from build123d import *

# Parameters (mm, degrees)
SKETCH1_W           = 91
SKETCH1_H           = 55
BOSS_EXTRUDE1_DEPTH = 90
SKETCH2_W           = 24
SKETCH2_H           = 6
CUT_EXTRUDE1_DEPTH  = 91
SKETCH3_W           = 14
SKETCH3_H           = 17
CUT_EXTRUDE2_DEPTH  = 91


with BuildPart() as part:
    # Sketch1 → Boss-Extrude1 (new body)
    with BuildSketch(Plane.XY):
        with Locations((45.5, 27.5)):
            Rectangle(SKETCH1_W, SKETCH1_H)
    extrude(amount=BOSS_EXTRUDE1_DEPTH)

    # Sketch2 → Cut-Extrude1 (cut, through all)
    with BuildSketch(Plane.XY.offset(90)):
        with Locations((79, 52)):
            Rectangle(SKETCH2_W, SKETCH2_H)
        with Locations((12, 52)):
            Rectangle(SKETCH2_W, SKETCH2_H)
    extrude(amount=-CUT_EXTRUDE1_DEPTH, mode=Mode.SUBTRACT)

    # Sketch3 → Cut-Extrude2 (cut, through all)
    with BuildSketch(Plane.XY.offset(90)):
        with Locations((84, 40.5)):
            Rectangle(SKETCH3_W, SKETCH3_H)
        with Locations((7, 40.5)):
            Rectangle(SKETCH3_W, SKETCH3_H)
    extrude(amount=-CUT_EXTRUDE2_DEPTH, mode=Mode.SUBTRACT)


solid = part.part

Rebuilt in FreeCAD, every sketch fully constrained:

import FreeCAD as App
import Part
import Sketcher

doc = App.newDocument("Part")
params = doc.addObject("Spreadsheet::Sheet", "Params")
for row, (alias, value) in enumerate([
    ("sketch1_width", "91 mm"),
    ("sketch1_height", "55 mm"),
    ("pad1_length", "90 mm"),
    ("sketch2_width", "24 mm"),
    ("sketch2_height", "6 mm"),
    ("sketch3_width", "14 mm"),
    ("sketch3_height", "17 mm"),
], start=1):
    params.set(f"A{row}", alias)
    params.set(f"B{row}", "=" + value)
    params.setAlias(f"B{row}", alias)

body = doc.addObject("PartDesign::Body", "Body")

sketch1 = body.newObject("Sketcher::SketchObject", "Sketch")
sketch1.AttachmentSupport = (doc.getObject("XY_Plane"), [""])
sketch1.MapMode = "FlatFace"
sketch1.addGeometry(Part.LineSegment(App.Vector(0, 55, 0), App.Vector(0, 0, 0)), False)
sketch1.addGeometry(Part.LineSegment(App.Vector(0, 0, 0), App.Vector(91, 0, 0)), False)
sketch1.addGeometry(Part.LineSegment(App.Vector(91, 0, 0), App.Vector(91, 55, 0)), False)
sketch1.addGeometry(Part.LineSegment(App.Vector(91, 55, 0), App.Vector(0, 55, 0)), False)
sketch1.addConstraint(Sketcher.Constraint("Coincident", 0, 2, 1, 1))
sketch1.addConstraint(Sketcher.Constraint("Coincident", 1, 2, 2, 1))
sketch1.addConstraint(Sketcher.Constraint("Coincident", 2, 2, 3, 1))
sketch1.addConstraint(Sketcher.Constraint("Coincident", 3, 2, 0, 1))
sketch1.addConstraint(Sketcher.Constraint("Vertical", 0))
sketch1.addConstraint(Sketcher.Constraint("Horizontal", 1))
sketch1.addConstraint(Sketcher.Constraint("Vertical", 2))
sketch1.addConstraint(Sketcher.Constraint("Horizontal", 3))
sketch1.addConstraint(Sketcher.Constraint("Coincident", 0, 2, -1, 1))
sketch1.addConstraint(Sketcher.Constraint("DistanceX", 1, 1, 1, 2, 91.0))
sketch1.addConstraint(Sketcher.Constraint("DistanceY", 0, 2, 0, 1, 55.0))
sketch1.setExpression("Constraints[9]", "Params.sketch1_width")
sketch1.setExpression("Constraints[10]", "Params.sketch1_height")
pad1 = body.newObject("PartDesign::Pad", "Pad")
pad1.Profile = sketch1
pad1.setExpression("Length", "Params.pad1_length")

sketch2 = body.newObject("Sketcher::SketchObject", "Sketch001")
sketch2.AttachmentSupport = (doc.getObject("XY_Plane"), [""])
sketch2.MapMode = "FlatFace"
sketch2.AttachmentOffset = App.Placement(App.Vector(0, 0, 90), App.Rotation())
sketch2.addGeometry(Part.LineSegment(App.Vector(67, 55, 0), App.Vector(67, 49, 0)), False)
sketch2.addGeometry(Part.LineSegment(App.Vector(67, 49, 0), App.Vector(91, 49, 0)), False)
sketch2.addGeometry(Part.LineSegment(App.Vector(91, 49, 0), App.Vector(91, 55, 0)), False)
sketch2.addGeometry(Part.LineSegment(App.Vector(91, 55, 0), App.Vector(67, 55, 0)), False)
sketch2.addGeometry(Part.LineSegment(App.Vector(0, 55, 0), App.Vector(0, 49, 0)), False)
sketch2.addGeometry(Part.LineSegment(App.Vector(0, 49, 0), App.Vector(24, 49, 0)), False)
sketch2.addGeometry(Part.LineSegment(App.Vector(24, 49, 0), App.Vector(24, 55, 0)), False)
sketch2.addGeometry(Part.LineSegment(App.Vector(24, 55, 0), App.Vector(0, 55, 0)), False)
sketch2.addConstraint(Sketcher.Constraint("Coincident", 0, 2, 1, 1))
sketch2.addConstraint(Sketcher.Constraint("Coincident", 1, 2, 2, 1))
sketch2.addConstraint(Sketcher.Constraint("Coincident", 2, 2, 3, 1))
sketch2.addConstraint(Sketcher.Constraint("Coincident", 3, 2, 0, 1))
sketch2.addConstraint(Sketcher.Constraint("Coincident", 4, 2, 5, 1))
sketch2.addConstraint(Sketcher.Constraint("Coincident", 5, 2, 6, 1))
sketch2.addConstraint(Sketcher.Constraint("Coincident", 6, 2, 7, 1))
sketch2.addConstraint(Sketcher.Constraint("Coincident", 7, 2, 4, 1))
sketch2.addConstraint(Sketcher.Constraint("Vertical", 0))
sketch2.addConstraint(Sketcher.Constraint("Horizontal", 1))
sketch2.addConstraint(Sketcher.Constraint("Vertical", 2))
sketch2.addConstraint(Sketcher.Constraint("Horizontal", 3))
sketch2.addConstraint(Sketcher.Constraint("Vertical", 4))
sketch2.addConstraint(Sketcher.Constraint("Horizontal", 5))
sketch2.addConstraint(Sketcher.Constraint("Vertical", 6))
sketch2.addConstraint(Sketcher.Constraint("Horizontal", 7))
sketch2.addConstraint(Sketcher.Constraint("PointOnObject", 4, 2, -2))
sketch2.addConstraint(Sketcher.Constraint("Horizontal", 1, 2, 4, 2))
sketch2.addConstraint(Sketcher.Constraint("Horizontal", 3, 2, 6, 2))
sketch2.addConstraint(Sketcher.Constraint("Equal", 3, 5))
sketch2.addConstraint(Sketcher.Constraint("DistanceX", 1, 1, 1, 2, 24.0))
sketch2.addConstraint(Sketcher.Constraint("DistanceY", 0, 2, 0, 1, 6.0))
sketch2.addConstraint(Sketcher.Constraint("DistanceX", -1, 1, 0, 2, 67.0))
sketch2.addConstraint(Sketcher.Constraint("DistanceY", -1, 1, 0, 2, 49.0))
sketch2.setExpression("Constraints[20]", "Params.sketch2_width")
sketch2.setExpression("Constraints[21]", "Params.sketch2_height")
pocket1 = body.newObject("PartDesign::Pocket", "Pocket")
pocket1.Profile = sketch2
pocket1.Type = "ThroughAll"

sketch3 = body.newObject("Sketcher::SketchObject", "Sketch002")
sketch3.AttachmentSupport = (doc.getObject("XY_Plane"), [""])
sketch3.MapMode = "FlatFace"
sketch3.AttachmentOffset = App.Placement(App.Vector(0, 0, 90), App.Rotation())
sketch3.addGeometry(Part.LineSegment(App.Vector(77, 49, 0), App.Vector(77, 32, 0)), False)
sketch3.addGeometry(Part.LineSegment(App.Vector(77, 32, 0), App.Vector(91, 32, 0)), False)
sketch3.addGeometry(Part.LineSegment(App.Vector(91, 32, 0), App.Vector(91, 49, 0)), False)
sketch3.addGeometry(Part.LineSegment(App.Vector(91, 49, 0), App.Vector(77, 49, 0)), False)
sketch3.addGeometry(Part.LineSegment(App.Vector(0, 49, 0), App.Vector(0, 32, 0)), False)
sketch3.addGeometry(Part.LineSegment(App.Vector(0, 32, 0), App.Vector(14, 32, 0)), False)
sketch3.addGeometry(Part.LineSegment(App.Vector(14, 32, 0), App.Vector(14, 49, 0)), False)
sketch3.addGeometry(Part.LineSegment(App.Vector(14, 49, 0), App.Vector(0, 49, 0)), False)
sketch3.addConstraint(Sketcher.Constraint("Coincident", 0, 2, 1, 1))
sketch3.addConstraint(Sketcher.Constraint("Coincident", 1, 2, 2, 1))
sketch3.addConstraint(Sketcher.Constraint("Coincident", 2, 2, 3, 1))
sketch3.addConstraint(Sketcher.Constraint("Coincident", 3, 2, 0, 1))
sketch3.addConstraint(Sketcher.Constraint("Coincident", 4, 2, 5, 1))
sketch3.addConstraint(Sketcher.Constraint("Coincident", 5, 2, 6, 1))
sketch3.addConstraint(Sketcher.Constraint("Coincident", 6, 2, 7, 1))
sketch3.addConstraint(Sketcher.Constraint("Coincident", 7, 2, 4, 1))
sketch3.addConstraint(Sketcher.Constraint("Vertical", 0))
sketch3.addConstraint(Sketcher.Constraint("Horizontal", 1))
sketch3.addConstraint(Sketcher.Constraint("Vertical", 2))
sketch3.addConstraint(Sketcher.Constraint("Horizontal", 3))
sketch3.addConstraint(Sketcher.Constraint("Vertical", 4))
sketch3.addConstraint(Sketcher.Constraint("Horizontal", 5))
sketch3.addConstraint(Sketcher.Constraint("Vertical", 6))
sketch3.addConstraint(Sketcher.Constraint("Horizontal", 7))
sketch3.addConstraint(Sketcher.Constraint("PointOnObject", 4, 2, -2))
sketch3.addConstraint(Sketcher.Constraint("Horizontal", 1, 2, 4, 2))
sketch3.addConstraint(Sketcher.Constraint("Horizontal", 3, 2, 6, 2))
sketch3.addConstraint(Sketcher.Constraint("Equal", 3, 5))
sketch3.addConstraint(Sketcher.Constraint("DistanceX", 1, 1, 1, 2, 14.0))
sketch3.addConstraint(Sketcher.Constraint("DistanceY", 0, 2, 0, 1, 17.0))
sketch3.addConstraint(Sketcher.Constraint("DistanceX", -1, 1, 0, 2, 77.0))
sketch3.addConstraint(Sketcher.Constraint("DistanceY", -1, 1, 0, 2, 32.0))
sketch3.setExpression("Constraints[20]", "Params.sketch3_width")
sketch3.setExpression("Constraints[21]", "Params.sketch3_height")
pocket2 = body.newObject("PartDesign::Pocket", "Pocket001")
pocket2.Profile = sketch3
pocket2.Type = "ThroughAll"

doc.recompute()
